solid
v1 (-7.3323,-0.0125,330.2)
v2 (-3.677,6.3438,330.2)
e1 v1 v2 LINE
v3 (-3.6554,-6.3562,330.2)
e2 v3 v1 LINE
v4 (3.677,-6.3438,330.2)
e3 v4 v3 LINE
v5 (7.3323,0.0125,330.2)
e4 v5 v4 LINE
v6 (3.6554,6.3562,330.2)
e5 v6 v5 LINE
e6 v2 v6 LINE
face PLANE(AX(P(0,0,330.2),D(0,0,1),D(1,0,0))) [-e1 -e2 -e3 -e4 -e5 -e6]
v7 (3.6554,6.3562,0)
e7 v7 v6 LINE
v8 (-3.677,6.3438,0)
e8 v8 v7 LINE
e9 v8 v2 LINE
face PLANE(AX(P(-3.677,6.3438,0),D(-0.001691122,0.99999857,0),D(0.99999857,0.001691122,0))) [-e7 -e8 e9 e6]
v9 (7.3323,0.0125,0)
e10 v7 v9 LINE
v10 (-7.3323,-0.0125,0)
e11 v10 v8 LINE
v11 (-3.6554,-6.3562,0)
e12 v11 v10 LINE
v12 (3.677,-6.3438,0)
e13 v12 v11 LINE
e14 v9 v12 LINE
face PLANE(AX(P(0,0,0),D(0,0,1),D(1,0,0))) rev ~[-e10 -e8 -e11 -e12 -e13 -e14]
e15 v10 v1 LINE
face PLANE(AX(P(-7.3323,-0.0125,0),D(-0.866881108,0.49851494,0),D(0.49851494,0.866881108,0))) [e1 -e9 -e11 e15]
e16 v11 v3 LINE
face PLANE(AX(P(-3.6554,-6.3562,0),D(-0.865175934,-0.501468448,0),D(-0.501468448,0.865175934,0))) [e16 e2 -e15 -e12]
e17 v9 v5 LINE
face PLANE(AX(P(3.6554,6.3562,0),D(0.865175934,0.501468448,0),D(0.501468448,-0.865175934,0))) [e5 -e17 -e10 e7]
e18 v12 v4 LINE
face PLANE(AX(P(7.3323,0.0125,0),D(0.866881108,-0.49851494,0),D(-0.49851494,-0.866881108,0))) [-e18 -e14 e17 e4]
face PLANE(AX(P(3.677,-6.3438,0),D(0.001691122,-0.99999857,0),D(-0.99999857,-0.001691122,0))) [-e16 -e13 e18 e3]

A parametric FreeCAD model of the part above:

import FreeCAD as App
import Part
import Sketcher

V = App.Vector
Q = App.Units.Quantity


def add_polygon(sketch, points):
    """Adds a closed chain of lines whose ends are joined by coincident constraints."""
    first, n = sketch.GeometryCount, len(points)
    for a, b in zip(points, points[1:] + points[:1]):
        sketch.addGeometry(Part.LineSegment(App.Vector(*a, 0), App.Vector(*b, 0)), False)
    for i in range(n):
        sketch.addConstraint(Sketcher.Constraint("Coincident", first + i, 2, first + (i + 1) % n, 1))

doc = App.newDocument("Part")
body = doc.addObject("PartDesign::Body", "Body")

# Sketch on XY plane
sketch1 = body.newObject("Sketcher::SketchObject", "Sketch")
sketch1.AttachmentSupport = (doc.getObject("XY_Plane"), [""])
sketch1.MapMode = "FlatFace"
add_polygon(sketch1, [(7, 0), (4, 6), (-4, 6), (-7, 0), (-4, -6), (4, -6)])  # lines 0-5
sketch1.addConstraint([
    Sketcher.Constraint("Symmetric", 0, 2, 3, 2, -1, 1),
    Sketcher.Constraint("Symmetric", 1, 2, 4, 2, -1, 1),
    Sketcher.Constraint("Symmetric", 2, 2, 5, 2, -1, 1),
    Sketcher.Constraint("Equal", 0, 1),
    Sketcher.Constraint("Equal", 1, 2),
    Sketcher.Constraint("DistanceY", 3, 2, 1, 2, Q("0.5 in")),
    Sketcher.Constraint("DistanceY", 2, 2, -1, 1, Q("0.0005 in")),
    Sketcher.Constraint("DistanceY", 1, 2, 0, 2, Q("0.0005 in")),
    Sketcher.Constraint("DistanceX", 2, 2, 1, 2, Q("0.1439 in")),
])
pad1 = body.newObject("PartDesign::Pad", "Pad")
pad1.Profile = sketch1
pad1.Length = Q("13 in")

doc.recompute()
